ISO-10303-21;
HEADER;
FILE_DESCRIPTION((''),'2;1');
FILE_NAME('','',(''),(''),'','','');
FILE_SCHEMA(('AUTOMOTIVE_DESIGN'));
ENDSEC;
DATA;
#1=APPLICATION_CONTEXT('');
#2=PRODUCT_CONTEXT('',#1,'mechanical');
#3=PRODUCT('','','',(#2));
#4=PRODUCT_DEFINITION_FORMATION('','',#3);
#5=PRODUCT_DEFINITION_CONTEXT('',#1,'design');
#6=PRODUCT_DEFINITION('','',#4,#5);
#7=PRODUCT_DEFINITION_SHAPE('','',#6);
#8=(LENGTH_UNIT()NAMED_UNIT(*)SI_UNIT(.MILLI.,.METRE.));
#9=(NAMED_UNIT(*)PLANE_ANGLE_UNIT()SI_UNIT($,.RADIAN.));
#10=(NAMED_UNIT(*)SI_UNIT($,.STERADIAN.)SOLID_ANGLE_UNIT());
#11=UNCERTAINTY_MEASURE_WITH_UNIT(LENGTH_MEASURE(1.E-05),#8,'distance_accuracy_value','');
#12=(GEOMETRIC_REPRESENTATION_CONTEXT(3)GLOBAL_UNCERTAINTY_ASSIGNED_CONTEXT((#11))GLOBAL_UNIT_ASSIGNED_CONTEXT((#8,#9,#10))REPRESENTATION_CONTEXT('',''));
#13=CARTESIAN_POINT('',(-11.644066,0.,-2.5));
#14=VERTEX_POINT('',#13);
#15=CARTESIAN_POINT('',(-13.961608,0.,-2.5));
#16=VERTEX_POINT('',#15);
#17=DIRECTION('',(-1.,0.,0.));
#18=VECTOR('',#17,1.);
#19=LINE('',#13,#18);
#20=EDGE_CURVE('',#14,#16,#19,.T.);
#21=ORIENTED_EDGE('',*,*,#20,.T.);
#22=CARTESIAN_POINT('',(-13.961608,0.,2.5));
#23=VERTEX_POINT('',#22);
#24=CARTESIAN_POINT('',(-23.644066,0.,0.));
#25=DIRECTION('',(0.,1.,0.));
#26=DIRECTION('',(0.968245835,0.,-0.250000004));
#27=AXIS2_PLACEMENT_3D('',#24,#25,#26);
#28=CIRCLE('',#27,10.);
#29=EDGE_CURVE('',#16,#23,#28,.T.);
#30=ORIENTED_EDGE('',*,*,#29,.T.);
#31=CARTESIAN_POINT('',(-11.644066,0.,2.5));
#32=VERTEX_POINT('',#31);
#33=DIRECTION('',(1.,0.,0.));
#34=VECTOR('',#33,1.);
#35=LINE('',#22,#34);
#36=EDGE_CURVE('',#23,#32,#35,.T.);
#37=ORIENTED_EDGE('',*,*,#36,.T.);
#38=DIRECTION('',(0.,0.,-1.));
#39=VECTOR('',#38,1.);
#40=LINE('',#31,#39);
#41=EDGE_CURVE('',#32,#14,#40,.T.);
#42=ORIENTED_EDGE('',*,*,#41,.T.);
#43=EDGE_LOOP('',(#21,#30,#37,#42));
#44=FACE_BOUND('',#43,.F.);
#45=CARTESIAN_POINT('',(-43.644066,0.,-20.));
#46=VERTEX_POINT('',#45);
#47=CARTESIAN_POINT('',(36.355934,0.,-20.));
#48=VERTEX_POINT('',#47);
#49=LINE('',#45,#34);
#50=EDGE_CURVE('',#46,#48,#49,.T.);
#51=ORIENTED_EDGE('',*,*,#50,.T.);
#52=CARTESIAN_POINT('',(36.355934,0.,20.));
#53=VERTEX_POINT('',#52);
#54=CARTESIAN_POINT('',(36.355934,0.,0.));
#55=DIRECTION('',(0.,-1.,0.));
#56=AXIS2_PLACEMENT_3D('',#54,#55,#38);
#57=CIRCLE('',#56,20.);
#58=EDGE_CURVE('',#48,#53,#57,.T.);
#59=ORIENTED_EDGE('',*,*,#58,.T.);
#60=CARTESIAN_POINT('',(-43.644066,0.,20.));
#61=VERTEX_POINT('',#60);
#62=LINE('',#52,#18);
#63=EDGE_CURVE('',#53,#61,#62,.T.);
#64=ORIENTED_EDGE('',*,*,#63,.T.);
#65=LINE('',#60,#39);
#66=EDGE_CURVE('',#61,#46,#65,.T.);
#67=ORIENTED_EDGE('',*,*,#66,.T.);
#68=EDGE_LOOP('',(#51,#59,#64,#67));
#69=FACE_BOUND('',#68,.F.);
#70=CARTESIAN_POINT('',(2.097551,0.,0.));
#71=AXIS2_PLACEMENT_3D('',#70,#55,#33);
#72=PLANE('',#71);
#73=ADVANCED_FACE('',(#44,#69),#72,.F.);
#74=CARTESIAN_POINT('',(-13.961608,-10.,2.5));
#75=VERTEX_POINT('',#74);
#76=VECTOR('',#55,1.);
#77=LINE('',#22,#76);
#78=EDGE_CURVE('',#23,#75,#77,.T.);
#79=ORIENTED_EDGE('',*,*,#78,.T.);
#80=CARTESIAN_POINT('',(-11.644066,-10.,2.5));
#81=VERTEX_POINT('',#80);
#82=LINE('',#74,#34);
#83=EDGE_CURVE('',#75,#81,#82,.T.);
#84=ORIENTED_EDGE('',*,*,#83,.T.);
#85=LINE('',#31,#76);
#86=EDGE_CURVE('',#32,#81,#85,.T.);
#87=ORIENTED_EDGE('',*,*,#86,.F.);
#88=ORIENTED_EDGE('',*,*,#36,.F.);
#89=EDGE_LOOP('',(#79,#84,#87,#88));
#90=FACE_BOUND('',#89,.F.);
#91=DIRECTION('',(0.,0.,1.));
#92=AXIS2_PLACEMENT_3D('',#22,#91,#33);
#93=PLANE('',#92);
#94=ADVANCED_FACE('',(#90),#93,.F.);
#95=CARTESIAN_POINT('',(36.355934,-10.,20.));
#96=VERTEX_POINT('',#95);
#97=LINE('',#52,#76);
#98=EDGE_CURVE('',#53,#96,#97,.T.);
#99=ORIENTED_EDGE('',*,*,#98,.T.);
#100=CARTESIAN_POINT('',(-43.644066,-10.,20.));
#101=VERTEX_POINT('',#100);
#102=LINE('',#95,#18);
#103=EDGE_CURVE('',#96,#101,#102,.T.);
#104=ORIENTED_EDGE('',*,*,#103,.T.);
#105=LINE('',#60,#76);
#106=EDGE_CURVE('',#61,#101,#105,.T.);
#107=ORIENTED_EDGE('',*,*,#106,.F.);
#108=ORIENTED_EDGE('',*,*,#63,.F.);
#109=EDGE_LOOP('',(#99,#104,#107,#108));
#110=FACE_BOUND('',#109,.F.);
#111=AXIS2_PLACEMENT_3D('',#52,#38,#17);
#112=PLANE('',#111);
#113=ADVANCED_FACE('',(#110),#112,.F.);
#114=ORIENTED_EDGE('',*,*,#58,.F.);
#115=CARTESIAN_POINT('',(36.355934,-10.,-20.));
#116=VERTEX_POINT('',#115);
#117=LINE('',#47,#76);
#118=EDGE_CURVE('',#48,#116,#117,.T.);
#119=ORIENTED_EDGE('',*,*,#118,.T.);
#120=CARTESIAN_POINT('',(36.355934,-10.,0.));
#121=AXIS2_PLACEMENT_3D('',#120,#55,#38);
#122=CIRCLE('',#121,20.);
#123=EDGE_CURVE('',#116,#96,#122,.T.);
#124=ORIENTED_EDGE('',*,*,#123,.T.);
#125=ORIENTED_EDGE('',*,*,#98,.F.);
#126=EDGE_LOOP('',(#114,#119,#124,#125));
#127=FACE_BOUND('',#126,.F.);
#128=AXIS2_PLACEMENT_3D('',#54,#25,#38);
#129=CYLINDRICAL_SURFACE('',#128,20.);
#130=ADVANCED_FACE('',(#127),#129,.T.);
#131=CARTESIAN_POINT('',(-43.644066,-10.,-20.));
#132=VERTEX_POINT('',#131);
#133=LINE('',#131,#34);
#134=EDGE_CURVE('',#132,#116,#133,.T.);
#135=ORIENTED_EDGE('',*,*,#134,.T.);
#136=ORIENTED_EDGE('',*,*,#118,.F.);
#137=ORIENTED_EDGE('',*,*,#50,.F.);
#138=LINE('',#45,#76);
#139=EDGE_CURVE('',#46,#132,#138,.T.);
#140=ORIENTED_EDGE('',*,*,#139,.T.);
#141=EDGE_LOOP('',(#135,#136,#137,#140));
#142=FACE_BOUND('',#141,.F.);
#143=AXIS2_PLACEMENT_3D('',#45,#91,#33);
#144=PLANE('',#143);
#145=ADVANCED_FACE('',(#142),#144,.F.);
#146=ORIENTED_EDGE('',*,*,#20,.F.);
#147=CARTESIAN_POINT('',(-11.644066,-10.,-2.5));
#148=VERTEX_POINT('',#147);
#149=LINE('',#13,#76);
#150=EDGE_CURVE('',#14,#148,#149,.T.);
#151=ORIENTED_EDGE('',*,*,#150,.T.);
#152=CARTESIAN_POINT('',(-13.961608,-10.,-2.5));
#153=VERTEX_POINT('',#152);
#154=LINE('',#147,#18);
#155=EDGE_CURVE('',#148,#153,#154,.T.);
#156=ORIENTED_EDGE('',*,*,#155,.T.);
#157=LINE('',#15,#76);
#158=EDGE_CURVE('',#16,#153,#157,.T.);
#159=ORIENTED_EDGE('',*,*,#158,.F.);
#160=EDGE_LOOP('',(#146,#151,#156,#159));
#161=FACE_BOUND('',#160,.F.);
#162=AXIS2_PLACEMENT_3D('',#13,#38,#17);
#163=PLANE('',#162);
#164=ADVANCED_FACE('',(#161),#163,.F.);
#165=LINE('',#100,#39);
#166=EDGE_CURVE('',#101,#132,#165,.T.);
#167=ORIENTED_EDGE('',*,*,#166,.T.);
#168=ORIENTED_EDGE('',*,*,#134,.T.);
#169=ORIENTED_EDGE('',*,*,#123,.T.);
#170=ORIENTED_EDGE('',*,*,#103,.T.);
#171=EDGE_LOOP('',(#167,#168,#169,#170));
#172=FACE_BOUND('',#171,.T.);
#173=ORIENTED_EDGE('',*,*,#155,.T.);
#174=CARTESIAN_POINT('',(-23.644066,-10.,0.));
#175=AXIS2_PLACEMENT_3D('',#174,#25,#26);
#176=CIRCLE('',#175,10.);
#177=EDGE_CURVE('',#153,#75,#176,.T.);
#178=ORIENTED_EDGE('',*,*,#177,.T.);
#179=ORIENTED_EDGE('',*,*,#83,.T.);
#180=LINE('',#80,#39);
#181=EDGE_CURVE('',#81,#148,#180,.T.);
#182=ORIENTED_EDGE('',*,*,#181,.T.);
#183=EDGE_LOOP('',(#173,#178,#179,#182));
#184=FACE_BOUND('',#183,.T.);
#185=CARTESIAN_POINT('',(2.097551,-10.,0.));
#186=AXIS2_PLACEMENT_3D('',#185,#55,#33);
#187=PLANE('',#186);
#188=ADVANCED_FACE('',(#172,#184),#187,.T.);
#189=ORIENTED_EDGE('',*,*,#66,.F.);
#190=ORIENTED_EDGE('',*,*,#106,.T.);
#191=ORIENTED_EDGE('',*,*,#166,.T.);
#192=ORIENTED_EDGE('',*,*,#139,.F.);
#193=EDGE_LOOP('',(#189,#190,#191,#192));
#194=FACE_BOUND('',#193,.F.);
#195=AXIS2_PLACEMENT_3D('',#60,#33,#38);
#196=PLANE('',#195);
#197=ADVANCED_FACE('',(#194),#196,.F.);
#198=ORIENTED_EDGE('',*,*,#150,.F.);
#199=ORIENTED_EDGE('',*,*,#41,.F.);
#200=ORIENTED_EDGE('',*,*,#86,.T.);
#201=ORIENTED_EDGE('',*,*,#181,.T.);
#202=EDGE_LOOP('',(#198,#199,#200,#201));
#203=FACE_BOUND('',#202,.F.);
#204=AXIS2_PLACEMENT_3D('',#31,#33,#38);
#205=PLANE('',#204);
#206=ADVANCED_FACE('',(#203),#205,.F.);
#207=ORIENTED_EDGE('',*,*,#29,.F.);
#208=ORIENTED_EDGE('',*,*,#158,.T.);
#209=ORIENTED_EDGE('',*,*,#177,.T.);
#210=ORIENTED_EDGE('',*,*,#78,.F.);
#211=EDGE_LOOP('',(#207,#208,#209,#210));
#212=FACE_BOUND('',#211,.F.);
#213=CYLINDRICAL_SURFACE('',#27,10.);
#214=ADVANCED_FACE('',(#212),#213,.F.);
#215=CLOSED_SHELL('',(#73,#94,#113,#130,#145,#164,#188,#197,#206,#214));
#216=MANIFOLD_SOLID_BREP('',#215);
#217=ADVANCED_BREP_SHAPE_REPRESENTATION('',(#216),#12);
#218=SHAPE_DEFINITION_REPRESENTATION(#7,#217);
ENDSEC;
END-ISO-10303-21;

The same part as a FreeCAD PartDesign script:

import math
import FreeCAD as App
import Part
import Sketcher
from FreeCAD import Vector

doc = App.newDocument("Part")
body = doc.addObject("PartDesign::Body", "Body")

# Sketch on XZ plane
sketch1 = doc.addObject("Sketcher::SketchObject", "Sketch")
body.addObject(sketch1)
sketch1.AttachmentSupport = (doc.XZ_Plane, [""])
sketch1.MapMode = "FlatFace"
sketch1.addGeometry([
    Part.LineSegment(Vector(36.4, 20, 0), Vector(-43.6, 20, 0)),  # 0
    Part.LineSegment(Vector(-43.6, 20, 0), Vector(-43.6, -20, 0)),  # 1
    Part.LineSegment(Vector(-43.6, -20, 0), Vector(36.4, -20, 0)),  # 2
    Part.ArcOfCircle(Part.Circle(Vector(36.4, 0, 0), Vector(0, 0, 1), 20), math.radians(-90), math.radians(90)),  # 3
    Part.LineSegment(Vector(-11.6, -2.5, 0), Vector(-14, -2.5, 0)),  # 4
    Part.ArcOfCircle(Part.Circle(Vector(-23.6, 0, 0), Vector(0, 0, 1), 10), math.radians(14), math.radians(346)),  # 5
    Part.LineSegment(Vector(-14, 2.5, 0), Vector(-11.6, 2.5, 0)),  # 6
    Part.LineSegment(Vector(-11.6, 2.5, 0), Vector(-11.6, -2.5, 0)),  # 7
], False)
sketch1.addConstraint([
    Sketcher.Constraint("Coincident", 0, 2, 1, 1),
    Sketcher.Constraint("Coincident", 1, 2, 2, 1),
    Sketcher.Constraint("Tangent", 2, 2, 3, 1),
    Sketcher.Constraint("Tangent", 3, 2, 0, 1),
    Sketcher.Constraint("Coincident", 4, 2, 5, 2),
    Sketcher.Constraint("Coincident", 5, 1, 6, 1),
    Sketcher.Constraint("Coincident", 6, 2, 7, 1),
    Sketcher.Constraint("Coincident", 7, 2, 4, 1),
    Sketcher.Constraint("Horizontal", 0),
    Sketcher.Constraint("Vertical", 1),
    Sketcher.Constraint("Horizontal", 2),
    Sketcher.Constraint("Horizontal", 4),
    Sketcher.Constraint("Horizontal", 6),
    Sketcher.Constraint("Vertical", 7),
    Sketcher.Constraint("Symmetric", 4, 2, 5, 1, -1),
    Sketcher.Constraint("PointOnObject", 3, 3, -1),
    Sketcher.Constraint("Radius", 3, 20.0),
    Sketcher.Constraint("Radius", 5, 10.0),
    Sketcher.Constraint("DistanceX", 0, 2, 0, 1, 80.0),
    Sketcher.Constraint("DistanceY", 7, 2, 7, 1, 5.0),
    Sketcher.Constraint("DistanceX", 5, 3, 3, 3, 60.0),
    Sketcher.Constraint("DistanceX", 5, 3, 6, 2, 12.0),
    Sketcher.Constraint("DistanceX", 5, 1, -1, 1, 13.961608),
])
pad1 = doc.addObject("PartDesign::Pad", "Pad")
body.addObject(pad1)
pad1.Profile = sketch1
pad1.Length = 10

doc.recompute()
